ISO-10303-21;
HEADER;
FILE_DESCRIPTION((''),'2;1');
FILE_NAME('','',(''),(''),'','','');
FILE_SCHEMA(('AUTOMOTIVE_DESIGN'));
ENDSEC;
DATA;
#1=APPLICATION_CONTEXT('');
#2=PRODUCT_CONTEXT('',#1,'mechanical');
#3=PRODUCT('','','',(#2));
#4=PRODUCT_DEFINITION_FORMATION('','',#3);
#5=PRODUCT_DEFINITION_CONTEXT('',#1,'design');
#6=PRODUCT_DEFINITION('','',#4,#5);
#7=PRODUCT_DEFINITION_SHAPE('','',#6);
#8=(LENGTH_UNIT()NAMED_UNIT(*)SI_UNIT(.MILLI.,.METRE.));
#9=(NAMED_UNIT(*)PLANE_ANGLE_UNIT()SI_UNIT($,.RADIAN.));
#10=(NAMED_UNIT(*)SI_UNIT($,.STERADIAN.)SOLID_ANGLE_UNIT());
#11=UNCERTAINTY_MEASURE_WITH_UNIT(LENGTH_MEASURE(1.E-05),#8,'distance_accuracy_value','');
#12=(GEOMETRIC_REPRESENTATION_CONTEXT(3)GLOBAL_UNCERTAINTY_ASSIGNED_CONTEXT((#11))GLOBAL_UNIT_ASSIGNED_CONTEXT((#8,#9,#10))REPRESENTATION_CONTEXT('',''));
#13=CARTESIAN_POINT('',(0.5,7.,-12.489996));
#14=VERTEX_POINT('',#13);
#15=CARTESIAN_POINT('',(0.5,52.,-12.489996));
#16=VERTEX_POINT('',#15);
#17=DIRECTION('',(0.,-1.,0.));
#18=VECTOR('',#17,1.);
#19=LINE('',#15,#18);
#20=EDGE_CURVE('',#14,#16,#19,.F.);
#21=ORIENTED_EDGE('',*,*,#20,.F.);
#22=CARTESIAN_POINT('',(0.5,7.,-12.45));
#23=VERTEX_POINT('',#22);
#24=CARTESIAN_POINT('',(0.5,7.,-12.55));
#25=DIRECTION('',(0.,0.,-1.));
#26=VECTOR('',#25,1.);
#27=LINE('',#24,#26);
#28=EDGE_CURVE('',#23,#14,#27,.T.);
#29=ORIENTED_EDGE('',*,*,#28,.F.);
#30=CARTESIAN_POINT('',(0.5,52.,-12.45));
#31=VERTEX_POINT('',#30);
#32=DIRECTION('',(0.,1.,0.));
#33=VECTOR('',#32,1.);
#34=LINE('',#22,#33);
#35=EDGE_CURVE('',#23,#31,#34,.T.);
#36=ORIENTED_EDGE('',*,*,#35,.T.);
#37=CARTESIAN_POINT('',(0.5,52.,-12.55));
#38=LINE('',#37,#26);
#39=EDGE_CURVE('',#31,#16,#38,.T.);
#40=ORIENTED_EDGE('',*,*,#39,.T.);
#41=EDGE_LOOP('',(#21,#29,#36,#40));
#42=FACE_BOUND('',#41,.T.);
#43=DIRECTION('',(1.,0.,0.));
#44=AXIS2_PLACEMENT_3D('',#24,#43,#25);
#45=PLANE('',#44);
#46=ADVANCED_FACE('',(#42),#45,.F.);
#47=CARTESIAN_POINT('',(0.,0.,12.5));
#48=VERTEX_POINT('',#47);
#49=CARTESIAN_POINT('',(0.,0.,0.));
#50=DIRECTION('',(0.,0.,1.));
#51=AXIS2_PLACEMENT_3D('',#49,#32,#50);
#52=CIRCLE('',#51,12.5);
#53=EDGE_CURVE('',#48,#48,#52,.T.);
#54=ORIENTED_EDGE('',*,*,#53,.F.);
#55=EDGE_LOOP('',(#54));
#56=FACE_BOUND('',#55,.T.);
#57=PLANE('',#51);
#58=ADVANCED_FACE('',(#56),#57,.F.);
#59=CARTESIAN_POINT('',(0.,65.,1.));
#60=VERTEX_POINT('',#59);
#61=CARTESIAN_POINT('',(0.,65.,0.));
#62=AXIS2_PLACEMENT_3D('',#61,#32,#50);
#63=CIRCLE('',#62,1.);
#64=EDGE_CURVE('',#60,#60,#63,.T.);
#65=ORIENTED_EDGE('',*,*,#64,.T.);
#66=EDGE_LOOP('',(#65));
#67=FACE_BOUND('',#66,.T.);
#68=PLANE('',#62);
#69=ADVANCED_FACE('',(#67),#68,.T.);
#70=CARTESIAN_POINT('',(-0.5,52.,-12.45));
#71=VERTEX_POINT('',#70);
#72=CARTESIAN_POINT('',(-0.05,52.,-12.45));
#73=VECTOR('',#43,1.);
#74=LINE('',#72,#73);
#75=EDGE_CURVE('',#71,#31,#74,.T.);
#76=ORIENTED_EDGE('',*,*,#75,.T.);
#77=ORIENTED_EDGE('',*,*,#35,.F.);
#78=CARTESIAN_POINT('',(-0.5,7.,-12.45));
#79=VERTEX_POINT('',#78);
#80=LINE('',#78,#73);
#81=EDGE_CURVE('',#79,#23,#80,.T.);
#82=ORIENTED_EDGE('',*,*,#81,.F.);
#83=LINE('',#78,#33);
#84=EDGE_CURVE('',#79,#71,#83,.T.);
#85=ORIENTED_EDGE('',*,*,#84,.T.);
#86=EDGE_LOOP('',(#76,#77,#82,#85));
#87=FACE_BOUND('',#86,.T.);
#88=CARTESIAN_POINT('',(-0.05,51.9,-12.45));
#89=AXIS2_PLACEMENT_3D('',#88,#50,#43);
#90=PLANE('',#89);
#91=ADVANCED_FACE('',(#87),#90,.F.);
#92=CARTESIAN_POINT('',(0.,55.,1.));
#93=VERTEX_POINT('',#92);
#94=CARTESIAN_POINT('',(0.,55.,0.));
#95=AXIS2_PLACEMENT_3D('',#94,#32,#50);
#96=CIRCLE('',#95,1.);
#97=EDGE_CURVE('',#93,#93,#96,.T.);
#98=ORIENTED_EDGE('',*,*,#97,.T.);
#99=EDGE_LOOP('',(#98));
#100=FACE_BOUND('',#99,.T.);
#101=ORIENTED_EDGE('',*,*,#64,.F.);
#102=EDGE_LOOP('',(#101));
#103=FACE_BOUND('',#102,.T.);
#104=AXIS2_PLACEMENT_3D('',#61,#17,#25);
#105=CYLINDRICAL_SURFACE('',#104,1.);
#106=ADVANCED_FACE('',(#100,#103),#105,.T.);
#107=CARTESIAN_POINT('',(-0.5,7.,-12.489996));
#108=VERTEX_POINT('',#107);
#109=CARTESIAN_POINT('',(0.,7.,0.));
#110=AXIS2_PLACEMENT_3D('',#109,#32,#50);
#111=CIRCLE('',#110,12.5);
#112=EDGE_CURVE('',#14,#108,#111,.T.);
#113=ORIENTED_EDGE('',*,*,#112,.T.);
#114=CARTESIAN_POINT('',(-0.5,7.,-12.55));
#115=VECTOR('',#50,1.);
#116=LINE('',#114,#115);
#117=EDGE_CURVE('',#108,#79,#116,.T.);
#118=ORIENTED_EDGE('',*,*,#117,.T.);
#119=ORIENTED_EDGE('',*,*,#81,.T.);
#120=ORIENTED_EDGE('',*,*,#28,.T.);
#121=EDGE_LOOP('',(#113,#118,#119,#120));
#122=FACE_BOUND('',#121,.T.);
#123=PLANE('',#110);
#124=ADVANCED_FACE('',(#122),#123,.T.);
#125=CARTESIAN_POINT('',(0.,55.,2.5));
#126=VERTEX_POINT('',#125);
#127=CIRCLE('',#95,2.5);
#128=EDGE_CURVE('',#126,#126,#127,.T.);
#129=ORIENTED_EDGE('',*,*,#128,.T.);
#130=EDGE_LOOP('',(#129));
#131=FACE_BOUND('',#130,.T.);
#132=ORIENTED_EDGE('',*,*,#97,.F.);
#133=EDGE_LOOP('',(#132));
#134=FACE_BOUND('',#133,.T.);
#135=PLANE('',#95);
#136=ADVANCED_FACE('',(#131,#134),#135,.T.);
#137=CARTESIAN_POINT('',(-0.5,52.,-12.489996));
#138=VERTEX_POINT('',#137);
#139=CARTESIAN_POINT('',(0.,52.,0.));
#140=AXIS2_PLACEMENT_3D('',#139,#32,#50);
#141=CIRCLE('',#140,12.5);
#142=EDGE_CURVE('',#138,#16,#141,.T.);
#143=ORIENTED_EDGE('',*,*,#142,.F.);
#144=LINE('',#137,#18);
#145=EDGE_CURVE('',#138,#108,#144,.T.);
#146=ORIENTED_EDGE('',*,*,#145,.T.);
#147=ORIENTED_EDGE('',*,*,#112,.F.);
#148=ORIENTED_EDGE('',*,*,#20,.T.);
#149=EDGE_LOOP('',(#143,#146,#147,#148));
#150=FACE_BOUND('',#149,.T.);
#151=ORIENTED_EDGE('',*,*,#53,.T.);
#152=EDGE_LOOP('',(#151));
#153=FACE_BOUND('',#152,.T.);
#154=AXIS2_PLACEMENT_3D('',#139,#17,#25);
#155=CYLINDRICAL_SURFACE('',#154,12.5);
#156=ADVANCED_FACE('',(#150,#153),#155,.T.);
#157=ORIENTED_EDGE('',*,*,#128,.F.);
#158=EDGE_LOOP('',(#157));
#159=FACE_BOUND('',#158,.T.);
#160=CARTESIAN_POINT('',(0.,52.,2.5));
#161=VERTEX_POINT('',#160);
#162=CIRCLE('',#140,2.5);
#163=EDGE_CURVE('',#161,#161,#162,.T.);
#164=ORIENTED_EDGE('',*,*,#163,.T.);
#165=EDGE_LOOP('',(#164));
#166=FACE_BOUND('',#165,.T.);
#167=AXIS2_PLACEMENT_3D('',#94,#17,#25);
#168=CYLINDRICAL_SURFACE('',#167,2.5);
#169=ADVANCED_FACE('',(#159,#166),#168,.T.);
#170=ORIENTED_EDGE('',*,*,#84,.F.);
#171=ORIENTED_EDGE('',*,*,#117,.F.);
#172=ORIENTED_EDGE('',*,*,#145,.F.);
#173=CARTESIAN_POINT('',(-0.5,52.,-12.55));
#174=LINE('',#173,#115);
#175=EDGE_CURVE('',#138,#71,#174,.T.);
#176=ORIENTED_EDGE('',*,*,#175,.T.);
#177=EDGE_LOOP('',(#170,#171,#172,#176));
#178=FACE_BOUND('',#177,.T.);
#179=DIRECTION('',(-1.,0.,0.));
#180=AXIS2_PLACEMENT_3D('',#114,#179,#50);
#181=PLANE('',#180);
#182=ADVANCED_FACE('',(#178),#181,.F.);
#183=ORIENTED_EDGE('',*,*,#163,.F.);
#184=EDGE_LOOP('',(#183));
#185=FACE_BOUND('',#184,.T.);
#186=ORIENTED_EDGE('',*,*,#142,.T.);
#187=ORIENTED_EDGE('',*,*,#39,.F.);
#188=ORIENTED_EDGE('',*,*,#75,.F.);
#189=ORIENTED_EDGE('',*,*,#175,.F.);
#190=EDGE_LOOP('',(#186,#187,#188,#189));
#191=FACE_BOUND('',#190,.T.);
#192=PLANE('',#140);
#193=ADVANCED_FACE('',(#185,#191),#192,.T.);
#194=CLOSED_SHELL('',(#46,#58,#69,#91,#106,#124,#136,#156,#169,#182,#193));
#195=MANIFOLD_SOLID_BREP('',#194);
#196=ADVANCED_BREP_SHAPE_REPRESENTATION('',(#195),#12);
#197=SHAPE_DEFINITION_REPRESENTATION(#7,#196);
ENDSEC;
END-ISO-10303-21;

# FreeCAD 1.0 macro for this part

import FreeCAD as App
import Part
import Sketcher
Q = App.Units.Quantity


def add_polygon(sketch, points):
    """Adds a closed chain of lines whose ends are joined by coincident constraints."""
    first, n = sketch.GeometryCount, len(points)
    for a, b in zip(points, points[1:] + points[:1]):
        sketch.addGeometry(Part.LineSegment(App.Vector(*a, 0), App.Vector(*b, 0)), False)
    for i in range(n):
        sketch.addConstraint(Sketcher.Constraint("Coincident", first + i, 2, first + (i + 1) % n, 1))

doc = App.newDocument("Part")
body = doc.addObject("PartDesign::Body", "Body")

sketch1 = body.newObject("Sketcher::SketchObject", "Sketch")
sketch1.AttachmentSupport = (doc.getObject("XZ_Plane"), [""])
sketch1.MapMode = "FlatFace"
sketch1.addGeometry(Part.Circle(App.Vector(0, 0, 0), App.Vector(0, 0, 1), 12), False)
sketch1.addConstraint([
    Sketcher.Constraint("Coincident", 0, 3, -1, 1),
    Sketcher.Constraint("Diameter", 0, Q("25 mm")),
])
pad1 = body.newObject("PartDesign::Pad", "Pad")
pad1.Profile = sketch1
pad1.Length = 52
pad1.Reversed = True

sketch2 = body.newObject("Sketcher::SketchObject", "Sketch001")
sketch2.AttachmentSupport = (doc.getObject("XZ_Plane"), [""])
sketch2.MapMode = "FlatFace"
sketch2.AttachmentOffset = App.Placement(App.Vector(0, 0, -52), App.Rotation())
sketch2.addGeometry(Part.Circle(App.Vector(0, 0, 0), App.Vector(0, 0, 1), 2.5), False)
sketch2.addConstraint([
    Sketcher.Constraint("Coincident", 0, 3, -1, 1),
    Sketcher.Constraint("Diameter", 0, Q("5 mm")),
])
pad2 = body.newObject("PartDesign::Pad", "Pad001")
pad2.Profile = sketch2
pad2.Length = 3
pad2.Reversed = True

sketch3 = body.newObject("Sketcher::SketchObject", "Sketch002")
sketch3.AttachmentSupport = (doc.getObject("XZ_Plane"), [""])
sketch3.MapMode = "FlatFace"
sketch3.AttachmentOffset = App.Placement(App.Vector(0, 0, -55), App.Rotation())
sketch3.addGeometry(Part.Circle(App.Vector(0, 0, 0), App.Vector(0, 0, 1), 1), False)
sketch3.addConstraint([
    Sketcher.Constraint("Coincident", 0, 3, -1, 1),
    Sketcher.Constraint("Diameter", 0, Q("2 mm")),
])
pad3 = body.newObject("PartDesign::Pad", "Pad002")
pad3.Profile = sketch3
pad3.Length = 10
pad3.Reversed = True

sketch4 = body.newObject("Sketcher::SketchObject", "Sketch003")
sketch4.AttachmentSupport = (doc.getObject("XZ_Plane"), [""])
sketch4.MapMode = "FlatFace"
sketch4.AttachmentOffset = App.Placement(App.Vector(0, 0, -52), App.Rotation())
add_polygon(sketch4, [(-0.05, -12.55), (-0.05, -12.45), (0.05, -12.45), (0.05, -12.55)])
sketch4.addConstraint([
    Sketcher.Constraint("Vertical", 0),
    Sketcher.Constraint("Horizontal", 1),
    Sketcher.Constraint("Vertical", 2),
    Sketcher.Constraint("Horizontal", 3),
    Sketcher.Constraint("Equal", 3, 0),
    Sketcher.Constraint("DistanceX", 1, 1, 1, 2, Q("0.1 mm")),
    Sketcher.Constraint("DistanceX", 0, 2, -1, 1, Q("0.05 mm")),
    Sketcher.Constraint("DistanceY", 0, 2, -1, 1, Q("12.45 mm")),
])
pocket1 = body.newObject("PartDesign::Pocket", "Pocket")
pocket1.Profile = sketch4
pocket1.Length = 0.1
pocket1.Reversed = True

sketch5 = body.newObject("Sketcher::SketchObject", "Sketch004")
sketch5.AttachmentSupport = (doc.getObject("XZ_Plane"), [""])
sketch5.MapMode = "FlatFace"
sketch5.AttachmentOffset = App.Placement(App.Vector(0, 0, -52), App.Rotation())
add_polygon(sketch5, [(-0.5, -12.55), (-0.5, -12.45), (0.5, -12.45), (0.5, -12.55)])
sketch5.addConstraint([
    Sketcher.Constraint("Vertical", 0),
    Sketcher.Constraint("Horizontal", 1),
    Sketcher.Constraint("Vertical", 2),
    Sketcher.Constraint("Horizontal", 3),
    Sketcher.Constraint("DistanceX", 1, 1, 1, 2, Q("1 mm")),
    Sketcher.Constraint("DistanceY", 0, 1, 0, 2, Q("0.1 mm")),
    Sketcher.Constraint("DistanceX", 0, 2, -1, 1, Q("0.5 mm")),
    Sketcher.Constraint("DistanceY", 0, 2, -1, 1, Q("12.45 mm")),
])
pocket2 = body.newObject("PartDesign::Pocket", "Pocket001")
pocket2.Profile = sketch5
pocket2.Length = 45
pocket2.Reversed = True

doc.recompute()
